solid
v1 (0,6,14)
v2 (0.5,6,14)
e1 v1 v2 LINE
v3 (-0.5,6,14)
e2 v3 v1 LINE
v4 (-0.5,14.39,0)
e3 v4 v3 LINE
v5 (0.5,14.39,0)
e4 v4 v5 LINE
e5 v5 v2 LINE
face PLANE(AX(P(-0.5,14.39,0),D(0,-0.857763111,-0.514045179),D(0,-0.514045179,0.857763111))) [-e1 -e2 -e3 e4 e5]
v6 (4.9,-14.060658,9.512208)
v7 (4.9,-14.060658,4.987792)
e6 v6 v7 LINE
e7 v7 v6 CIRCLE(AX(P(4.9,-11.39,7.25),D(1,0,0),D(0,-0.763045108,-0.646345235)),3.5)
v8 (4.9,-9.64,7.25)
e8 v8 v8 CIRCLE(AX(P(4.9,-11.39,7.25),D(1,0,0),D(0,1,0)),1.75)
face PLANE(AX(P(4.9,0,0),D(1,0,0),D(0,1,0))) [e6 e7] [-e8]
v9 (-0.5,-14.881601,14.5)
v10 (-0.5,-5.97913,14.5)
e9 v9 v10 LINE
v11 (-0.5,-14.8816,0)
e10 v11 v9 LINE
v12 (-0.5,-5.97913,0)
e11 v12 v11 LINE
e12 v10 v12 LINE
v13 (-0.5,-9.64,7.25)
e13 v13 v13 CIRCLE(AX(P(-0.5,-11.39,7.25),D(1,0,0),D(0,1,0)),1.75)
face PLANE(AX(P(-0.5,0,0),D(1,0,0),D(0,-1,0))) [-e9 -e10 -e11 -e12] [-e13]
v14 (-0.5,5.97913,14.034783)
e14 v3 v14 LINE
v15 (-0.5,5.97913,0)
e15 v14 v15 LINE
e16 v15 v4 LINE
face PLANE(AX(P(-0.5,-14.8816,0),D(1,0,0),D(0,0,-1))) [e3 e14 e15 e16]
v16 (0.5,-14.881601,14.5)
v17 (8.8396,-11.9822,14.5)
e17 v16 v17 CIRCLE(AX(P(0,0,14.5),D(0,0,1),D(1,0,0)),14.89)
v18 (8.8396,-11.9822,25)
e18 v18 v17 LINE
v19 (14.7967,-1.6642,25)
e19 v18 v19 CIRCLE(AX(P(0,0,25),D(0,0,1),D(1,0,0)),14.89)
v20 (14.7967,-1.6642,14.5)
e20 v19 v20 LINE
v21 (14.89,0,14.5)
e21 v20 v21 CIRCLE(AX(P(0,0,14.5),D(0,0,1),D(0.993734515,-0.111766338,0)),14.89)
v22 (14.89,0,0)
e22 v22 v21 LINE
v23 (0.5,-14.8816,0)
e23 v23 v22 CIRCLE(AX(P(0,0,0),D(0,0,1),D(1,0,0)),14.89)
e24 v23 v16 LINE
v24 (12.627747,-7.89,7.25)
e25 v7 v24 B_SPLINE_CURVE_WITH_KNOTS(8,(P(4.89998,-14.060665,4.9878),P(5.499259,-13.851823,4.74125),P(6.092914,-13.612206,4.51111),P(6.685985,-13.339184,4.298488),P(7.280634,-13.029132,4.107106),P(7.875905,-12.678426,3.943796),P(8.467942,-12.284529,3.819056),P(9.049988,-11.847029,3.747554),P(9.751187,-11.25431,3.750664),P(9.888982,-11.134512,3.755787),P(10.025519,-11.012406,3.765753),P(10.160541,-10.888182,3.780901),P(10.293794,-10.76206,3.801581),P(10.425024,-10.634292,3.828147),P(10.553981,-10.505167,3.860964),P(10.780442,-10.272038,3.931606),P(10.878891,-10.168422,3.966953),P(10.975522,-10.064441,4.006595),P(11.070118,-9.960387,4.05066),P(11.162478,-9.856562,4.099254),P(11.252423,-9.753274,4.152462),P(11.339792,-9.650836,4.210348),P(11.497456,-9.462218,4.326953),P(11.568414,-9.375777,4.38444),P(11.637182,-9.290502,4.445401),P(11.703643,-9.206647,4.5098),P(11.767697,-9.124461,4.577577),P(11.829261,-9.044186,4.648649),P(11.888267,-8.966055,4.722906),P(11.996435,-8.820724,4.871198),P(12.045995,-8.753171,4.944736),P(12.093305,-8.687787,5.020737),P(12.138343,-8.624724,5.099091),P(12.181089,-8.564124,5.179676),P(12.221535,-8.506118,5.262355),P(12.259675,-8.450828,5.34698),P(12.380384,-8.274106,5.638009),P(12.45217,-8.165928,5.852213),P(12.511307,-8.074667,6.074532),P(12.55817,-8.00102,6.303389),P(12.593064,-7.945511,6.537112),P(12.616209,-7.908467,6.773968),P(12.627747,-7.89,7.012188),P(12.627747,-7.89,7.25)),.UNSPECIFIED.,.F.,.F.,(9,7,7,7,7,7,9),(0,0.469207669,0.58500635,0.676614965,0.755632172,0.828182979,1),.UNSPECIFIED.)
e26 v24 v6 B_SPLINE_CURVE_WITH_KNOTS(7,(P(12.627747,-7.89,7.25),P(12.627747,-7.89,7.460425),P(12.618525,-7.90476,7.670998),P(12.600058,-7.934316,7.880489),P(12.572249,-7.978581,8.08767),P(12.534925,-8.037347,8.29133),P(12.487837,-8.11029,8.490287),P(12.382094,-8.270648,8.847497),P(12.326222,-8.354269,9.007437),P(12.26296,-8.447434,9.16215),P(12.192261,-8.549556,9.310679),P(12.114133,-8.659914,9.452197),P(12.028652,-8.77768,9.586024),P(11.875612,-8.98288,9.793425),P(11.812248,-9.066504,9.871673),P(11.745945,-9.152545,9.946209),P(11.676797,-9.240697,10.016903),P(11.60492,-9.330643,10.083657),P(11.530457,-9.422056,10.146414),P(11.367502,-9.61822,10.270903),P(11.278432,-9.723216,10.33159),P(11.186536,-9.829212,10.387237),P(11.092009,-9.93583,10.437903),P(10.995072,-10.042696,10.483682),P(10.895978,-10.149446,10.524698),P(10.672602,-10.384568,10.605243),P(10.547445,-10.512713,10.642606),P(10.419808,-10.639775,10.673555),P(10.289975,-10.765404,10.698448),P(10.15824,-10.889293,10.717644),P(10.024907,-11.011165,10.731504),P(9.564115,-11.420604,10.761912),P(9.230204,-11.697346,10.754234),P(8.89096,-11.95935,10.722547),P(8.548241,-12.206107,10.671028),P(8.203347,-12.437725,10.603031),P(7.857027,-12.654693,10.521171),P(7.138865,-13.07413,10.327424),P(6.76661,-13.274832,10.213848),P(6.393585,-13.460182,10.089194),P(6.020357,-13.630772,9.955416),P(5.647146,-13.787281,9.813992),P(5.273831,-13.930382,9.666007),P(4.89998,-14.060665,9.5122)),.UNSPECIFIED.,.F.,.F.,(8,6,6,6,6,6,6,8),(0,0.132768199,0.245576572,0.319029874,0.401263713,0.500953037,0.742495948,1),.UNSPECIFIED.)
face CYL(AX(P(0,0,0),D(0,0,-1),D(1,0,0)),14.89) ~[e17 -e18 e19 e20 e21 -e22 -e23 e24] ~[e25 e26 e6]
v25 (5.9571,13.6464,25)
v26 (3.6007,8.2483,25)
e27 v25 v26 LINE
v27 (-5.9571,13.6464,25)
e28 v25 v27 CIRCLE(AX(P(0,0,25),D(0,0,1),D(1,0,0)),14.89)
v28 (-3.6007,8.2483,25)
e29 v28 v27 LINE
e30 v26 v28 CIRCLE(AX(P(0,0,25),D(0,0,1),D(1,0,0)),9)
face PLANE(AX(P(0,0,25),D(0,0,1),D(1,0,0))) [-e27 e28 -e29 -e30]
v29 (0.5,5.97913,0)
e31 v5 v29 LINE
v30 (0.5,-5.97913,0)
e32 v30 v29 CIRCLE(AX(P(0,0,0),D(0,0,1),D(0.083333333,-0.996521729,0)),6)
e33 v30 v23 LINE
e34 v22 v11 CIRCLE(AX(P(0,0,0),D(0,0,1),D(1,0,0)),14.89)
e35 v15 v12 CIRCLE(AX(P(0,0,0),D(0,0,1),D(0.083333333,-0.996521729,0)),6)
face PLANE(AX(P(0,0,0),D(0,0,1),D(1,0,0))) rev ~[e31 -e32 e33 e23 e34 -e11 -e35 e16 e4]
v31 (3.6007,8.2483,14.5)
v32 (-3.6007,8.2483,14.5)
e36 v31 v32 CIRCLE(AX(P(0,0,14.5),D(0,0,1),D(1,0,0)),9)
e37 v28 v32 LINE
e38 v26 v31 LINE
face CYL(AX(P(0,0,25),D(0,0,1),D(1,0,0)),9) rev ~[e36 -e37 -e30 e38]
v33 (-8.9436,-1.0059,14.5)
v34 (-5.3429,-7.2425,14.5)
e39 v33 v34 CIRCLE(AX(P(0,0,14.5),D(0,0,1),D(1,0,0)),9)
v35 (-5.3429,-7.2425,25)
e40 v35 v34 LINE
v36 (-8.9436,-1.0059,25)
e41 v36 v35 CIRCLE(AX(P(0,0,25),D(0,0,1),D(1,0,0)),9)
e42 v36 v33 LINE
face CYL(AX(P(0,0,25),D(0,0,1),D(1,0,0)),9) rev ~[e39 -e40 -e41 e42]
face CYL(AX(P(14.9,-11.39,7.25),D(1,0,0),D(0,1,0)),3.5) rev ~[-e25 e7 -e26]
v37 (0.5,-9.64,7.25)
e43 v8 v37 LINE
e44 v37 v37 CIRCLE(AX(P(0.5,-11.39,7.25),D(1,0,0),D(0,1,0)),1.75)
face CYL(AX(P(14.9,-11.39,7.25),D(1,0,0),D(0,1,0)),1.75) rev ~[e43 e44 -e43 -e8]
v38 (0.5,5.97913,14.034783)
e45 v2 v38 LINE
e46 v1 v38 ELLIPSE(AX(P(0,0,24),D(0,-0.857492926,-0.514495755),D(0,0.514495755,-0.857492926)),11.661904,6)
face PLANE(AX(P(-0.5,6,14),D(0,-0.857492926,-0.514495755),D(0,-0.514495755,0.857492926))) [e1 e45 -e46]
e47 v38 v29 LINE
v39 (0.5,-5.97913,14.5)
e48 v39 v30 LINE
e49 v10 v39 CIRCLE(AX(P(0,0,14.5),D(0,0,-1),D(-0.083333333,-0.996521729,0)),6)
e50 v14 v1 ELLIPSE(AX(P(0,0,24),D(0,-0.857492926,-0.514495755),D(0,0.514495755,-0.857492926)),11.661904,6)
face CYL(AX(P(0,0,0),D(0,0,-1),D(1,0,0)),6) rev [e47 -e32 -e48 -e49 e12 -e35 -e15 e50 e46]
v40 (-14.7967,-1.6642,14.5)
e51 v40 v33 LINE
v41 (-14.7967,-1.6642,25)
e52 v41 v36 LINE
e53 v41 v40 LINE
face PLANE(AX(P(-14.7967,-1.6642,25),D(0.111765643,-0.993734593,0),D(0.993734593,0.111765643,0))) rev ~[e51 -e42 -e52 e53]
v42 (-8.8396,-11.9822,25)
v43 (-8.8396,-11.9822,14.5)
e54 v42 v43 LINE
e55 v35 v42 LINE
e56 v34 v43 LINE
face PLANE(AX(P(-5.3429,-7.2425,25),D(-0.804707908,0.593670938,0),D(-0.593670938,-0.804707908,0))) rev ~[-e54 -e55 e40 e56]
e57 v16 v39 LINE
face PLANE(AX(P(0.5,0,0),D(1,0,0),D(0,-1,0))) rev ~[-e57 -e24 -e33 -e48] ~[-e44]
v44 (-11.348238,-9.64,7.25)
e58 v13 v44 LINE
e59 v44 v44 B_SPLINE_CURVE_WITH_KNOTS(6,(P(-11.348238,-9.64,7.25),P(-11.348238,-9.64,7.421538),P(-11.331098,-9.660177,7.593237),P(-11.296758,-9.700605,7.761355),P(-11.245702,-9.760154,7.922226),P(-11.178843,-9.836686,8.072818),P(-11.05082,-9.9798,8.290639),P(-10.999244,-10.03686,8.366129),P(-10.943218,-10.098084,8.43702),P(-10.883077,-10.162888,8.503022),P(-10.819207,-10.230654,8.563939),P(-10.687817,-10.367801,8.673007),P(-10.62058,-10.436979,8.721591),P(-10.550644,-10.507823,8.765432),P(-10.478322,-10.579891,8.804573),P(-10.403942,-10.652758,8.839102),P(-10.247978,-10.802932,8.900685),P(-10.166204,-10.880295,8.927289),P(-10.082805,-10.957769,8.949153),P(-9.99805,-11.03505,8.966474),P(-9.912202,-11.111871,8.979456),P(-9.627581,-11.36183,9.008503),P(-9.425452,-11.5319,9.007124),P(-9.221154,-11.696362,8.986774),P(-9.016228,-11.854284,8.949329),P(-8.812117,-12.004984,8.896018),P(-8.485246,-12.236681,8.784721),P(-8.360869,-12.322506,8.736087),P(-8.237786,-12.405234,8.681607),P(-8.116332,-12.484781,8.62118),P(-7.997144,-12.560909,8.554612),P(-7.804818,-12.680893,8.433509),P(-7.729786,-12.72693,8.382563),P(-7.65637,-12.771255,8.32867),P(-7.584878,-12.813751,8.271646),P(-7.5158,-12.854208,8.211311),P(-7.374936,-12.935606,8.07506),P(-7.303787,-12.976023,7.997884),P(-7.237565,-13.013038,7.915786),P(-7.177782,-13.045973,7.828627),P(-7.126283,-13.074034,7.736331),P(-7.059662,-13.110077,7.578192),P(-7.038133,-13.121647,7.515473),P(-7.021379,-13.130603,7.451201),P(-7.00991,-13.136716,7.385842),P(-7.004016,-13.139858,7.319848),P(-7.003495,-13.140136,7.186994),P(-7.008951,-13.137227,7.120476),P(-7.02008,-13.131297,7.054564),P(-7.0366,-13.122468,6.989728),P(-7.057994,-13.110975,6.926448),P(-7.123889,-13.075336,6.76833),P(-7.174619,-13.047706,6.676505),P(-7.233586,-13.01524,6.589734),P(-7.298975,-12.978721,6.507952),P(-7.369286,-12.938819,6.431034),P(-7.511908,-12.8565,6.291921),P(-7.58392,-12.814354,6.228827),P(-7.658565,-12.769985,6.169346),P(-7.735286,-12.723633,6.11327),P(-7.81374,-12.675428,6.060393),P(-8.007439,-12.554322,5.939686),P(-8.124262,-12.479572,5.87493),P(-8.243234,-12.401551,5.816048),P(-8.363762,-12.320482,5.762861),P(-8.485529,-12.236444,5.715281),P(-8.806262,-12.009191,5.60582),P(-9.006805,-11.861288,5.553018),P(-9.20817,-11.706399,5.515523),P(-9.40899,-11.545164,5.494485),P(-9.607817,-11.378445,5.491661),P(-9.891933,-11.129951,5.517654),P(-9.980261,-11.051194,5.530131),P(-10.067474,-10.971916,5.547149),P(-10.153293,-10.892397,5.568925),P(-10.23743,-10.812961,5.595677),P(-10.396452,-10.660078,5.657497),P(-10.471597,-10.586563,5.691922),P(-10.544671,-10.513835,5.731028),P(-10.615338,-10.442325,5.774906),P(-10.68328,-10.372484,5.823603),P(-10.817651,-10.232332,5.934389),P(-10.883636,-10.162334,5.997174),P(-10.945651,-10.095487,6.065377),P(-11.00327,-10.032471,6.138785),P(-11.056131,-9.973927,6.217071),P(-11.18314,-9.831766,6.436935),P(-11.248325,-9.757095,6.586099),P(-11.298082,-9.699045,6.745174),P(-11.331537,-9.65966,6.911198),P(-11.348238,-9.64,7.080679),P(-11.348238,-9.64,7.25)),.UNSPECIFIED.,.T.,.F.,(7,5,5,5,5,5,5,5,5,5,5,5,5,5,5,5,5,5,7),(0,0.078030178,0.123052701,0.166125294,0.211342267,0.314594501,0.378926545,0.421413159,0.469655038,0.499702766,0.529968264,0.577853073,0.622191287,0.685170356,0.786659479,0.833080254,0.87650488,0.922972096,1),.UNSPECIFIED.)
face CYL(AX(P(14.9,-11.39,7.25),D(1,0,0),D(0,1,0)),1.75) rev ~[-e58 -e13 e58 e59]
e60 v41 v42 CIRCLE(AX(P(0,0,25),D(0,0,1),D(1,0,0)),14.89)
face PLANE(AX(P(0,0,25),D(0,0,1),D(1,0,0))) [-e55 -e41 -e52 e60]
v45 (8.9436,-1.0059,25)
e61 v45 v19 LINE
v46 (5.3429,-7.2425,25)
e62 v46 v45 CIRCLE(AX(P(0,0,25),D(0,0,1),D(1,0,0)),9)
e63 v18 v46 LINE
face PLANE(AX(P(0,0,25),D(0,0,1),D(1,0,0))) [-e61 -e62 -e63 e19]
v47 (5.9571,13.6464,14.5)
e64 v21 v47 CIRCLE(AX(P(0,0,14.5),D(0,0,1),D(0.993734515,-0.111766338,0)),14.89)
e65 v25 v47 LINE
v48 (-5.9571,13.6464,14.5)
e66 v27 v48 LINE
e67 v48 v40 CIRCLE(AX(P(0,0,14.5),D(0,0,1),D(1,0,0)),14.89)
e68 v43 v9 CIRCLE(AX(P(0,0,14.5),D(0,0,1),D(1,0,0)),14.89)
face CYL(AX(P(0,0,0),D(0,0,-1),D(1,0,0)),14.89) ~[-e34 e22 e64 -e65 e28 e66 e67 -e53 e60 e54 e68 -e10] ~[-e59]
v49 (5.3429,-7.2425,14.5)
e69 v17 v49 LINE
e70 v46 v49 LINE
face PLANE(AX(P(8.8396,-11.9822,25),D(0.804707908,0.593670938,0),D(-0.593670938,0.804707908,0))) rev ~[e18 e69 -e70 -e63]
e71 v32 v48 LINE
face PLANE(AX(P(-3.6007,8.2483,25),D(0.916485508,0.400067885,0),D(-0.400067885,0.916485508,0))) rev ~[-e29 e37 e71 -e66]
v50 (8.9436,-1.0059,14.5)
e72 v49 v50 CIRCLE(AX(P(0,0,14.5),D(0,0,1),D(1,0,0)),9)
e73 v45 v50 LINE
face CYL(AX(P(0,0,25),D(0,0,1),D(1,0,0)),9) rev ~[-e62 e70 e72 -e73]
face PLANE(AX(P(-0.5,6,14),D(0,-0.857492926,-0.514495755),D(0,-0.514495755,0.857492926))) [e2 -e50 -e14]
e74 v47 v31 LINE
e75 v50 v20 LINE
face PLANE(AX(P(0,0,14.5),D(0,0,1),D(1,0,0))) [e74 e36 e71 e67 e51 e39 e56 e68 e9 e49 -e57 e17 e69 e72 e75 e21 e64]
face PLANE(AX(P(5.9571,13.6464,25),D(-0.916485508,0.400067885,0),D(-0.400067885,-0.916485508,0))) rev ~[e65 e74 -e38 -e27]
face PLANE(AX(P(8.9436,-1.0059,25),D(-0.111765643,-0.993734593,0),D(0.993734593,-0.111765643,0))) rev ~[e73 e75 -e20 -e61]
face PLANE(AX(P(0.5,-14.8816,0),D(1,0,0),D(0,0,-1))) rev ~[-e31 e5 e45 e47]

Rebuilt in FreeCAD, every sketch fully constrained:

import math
import FreeCAD as App
import Part
import Sketcher
from FreeCAD import Vector
Q = App.Units.Quantity


def add_polygon(sketch, points):
    """Adds a closed chain of lines whose ends are joined by coincident constraints."""
    first, n = sketch.GeometryCount, len(points)
    for a, b in zip(points, points[1:] + points[:1]):
        sketch.addGeometry(Part.LineSegment(App.Vector(*a, 0), App.Vector(*b, 0)), False)
    for i in range(n):
        sketch.addConstraint(Sketcher.Constraint("Coincident", first + i, 2, first + (i + 1) % n, 1))

doc = App.newDocument("Part")
params = doc.addObject("Spreadsheet::Sheet", "Params")
for row, (alias, value) in enumerate([
    ("sketch1_diameter", "12 mm"),
    ("sketch1_diameter2", "29.78 mm"),
    ("pad1_length", "25 mm"),
    ("sketch2_radius", "9 mm"),
    ("sketch2_radius2", "14.89 mm"),
    ("pocket1_length", "10.5 mm"),
    ("sketch3_diameter", "7 mm"),
    ("pocket2_length", "10 mm"),
    ("sketch4_diameter", "3.5 mm"),
    ("pocket3_length", "30 mm"),
    ("sketch5_radius", "14.89 mm"),
    ("pocket4_length", "15 mm"),
    ("sketch6_height", "14.5 mm"),
    ("pocket5_length", "1 mm"),
], start=1):
    params.set(f"A{row}", alias)
    params.set(f"B{row}", "=" + value)
    params.setAlias(f"B{row}", alias)

body = doc.addObject("PartDesign::Body", "Body")

# Sketch on XY plane
sketch1 = doc.addObject("Sketcher::SketchObject", "Sketch")
body.addObject(sketch1)
sketch1.AttachmentSupport = (doc.XY_Plane, [""])
sketch1.MapMode = "FlatFace"
sketch1.addGeometry(Part.Circle(Vector(0, 0, 0), Vector(0, 0, 1), 14.89), False)
sketch1.addGeometry(Part.Circle(Vector(0, 0, 0), Vector(0, 0, 1), 6), False)
sketch1.addConstraint(Sketcher.Constraint("Coincident", 0, 3, -1, 1))
sketch1.addConstraint(Sketcher.Constraint("Coincident", 1, 3, -1, 1))
sketch1.addConstraint(Sketcher.Constraint("Diameter", 1, Q("12 mm")))
sketch1.addConstraint(Sketcher.Constraint("Diameter", 0, Q("29.78 mm")))
sketch1.setExpression("Constraints[2]", "Params.sketch1_diameter")
sketch1.setExpression("Constraints[3]", "Params.sketch1_diameter2")
pad1 = doc.addObject("PartDesign::Pad", "Pad")
body.addObject(pad1)
pad1.Profile = sketch1
pad1.setExpression("Length", "Params.pad1_length")

# Sketch on XY plane
sketch2 = doc.addObject("Sketcher::SketchObject", "Sketch001")
body.addObject(sketch2)
sketch2.AttachmentSupport = (doc.XY_Plane, [""])
sketch2.MapMode = "FlatFace"
sketch2.AttachmentOffset = App.Placement(Vector(0, 0, 25), App.Rotation())
sketch2.addGeometry(Part.ArcOfCircle(Part.Circle(Vector(0, 0, 0), Vector(0, 0, 1), 14.89), math.radians(-6.417147), math.radians(66.417157)), False)
sketch2.addGeometry(Part.LineSegment(Vector(5.9571, 13.6464, 0), Vector(3.6007, 8.2483, 0)), False)
sketch2.addGeometry(Part.ArcOfCircle(Part.Circle(Vector(0, 0, 0), Vector(0, 0, 1), 9), math.radians(66.416881), math.radians(113.583119)), False)
sketch2.addGeometry(Part.LineSegment(Vector(-3.6007, 8.2483, 0), Vector(-5.9571, 13.6464, 0)), False)
sketch2.addGeometry(Part.ArcOfCircle(Part.Circle(Vector(0, 0, 0), Vector(0, 0, 1), 14.89), math.radians(113.582843), math.radians(186.417147)), False)
sketch2.addGeometry(Part.LineSegment(Vector(-14.7967, -1.6642, 0), Vector(-8.9436, -1.0059, 0)), False)
sketch2.addGeometry(Part.ArcOfCircle(Part.Circle(Vector(0, 0, 0), Vector(0, 0, 1), 9), math.radians(-173.582826), math.radians(-126.416748)), False)
sketch2.addGeometry(Part.LineSegment(Vector(-5.3429, -7.2425, 0), Vector(-8.8396, -11.9822, 0)), False)
sketch2.addGeometry(Part.ArcOfCircle(Part.Circle(Vector(0, 0, 0), Vector(0, 0, 1), 14.89), math.radians(-126.417221), math.radians(-53.582779)), False)
sketch2.addGeometry(Part.LineSegment(Vector(8.8396, -11.9822, 0), Vector(5.3429, -7.2425, 0)), False)
sketch2.addGeometry(Part.ArcOfCircle(Part.Circle(Vector(0, 0, 0), Vector(0, 0, 1), 9), math.radians(-53.583252), math.radians(-6.417174)), False)
sketch2.addGeometry(Part.LineSegment(Vector(8.9436, -1.0059, 0), Vector(14.7967, -1.6642, 0)), False)
sketch2.addConstraint(Sketcher.Constraint("Coincident", 0, 2, 1, 1))
sketch2.addConstraint(Sketcher.Constraint("Coincident", 1, 2, 2, 1))
sketch2.addConstraint(Sketcher.Constraint("Coincident", 2, 2, 3, 1))
sketch2.addConstraint(Sketcher.Constraint("Coincident", 3, 2, 4, 1))
sketch2.addConstraint(Sketcher.Constraint("Coincident", 4, 2, 5, 1))
sketch2.addConstraint(Sketcher.Constraint("Coincident", 5, 2, 6, 1))
sketch2.addConstraint(Sketcher.Constraint("Coincident", 6, 2, 7, 1))
sketch2.addConstraint(Sketcher.Constraint("Coincident", 7, 2, 8, 1))
sketch2.addConstraint(Sketcher.Constraint("Coincident", 8, 2, 9, 1))
sketch2.addConstraint(Sketcher.Constraint("Coincident", 9, 2, 10, 1))
sketch2.addConstraint(Sketcher.Constraint("Coincident", 10, 2, 11, 1))
sketch2.addConstraint(Sketcher.Constraint("Coincident", 11, 2, 0, 1))
sketch2.addConstraint(Sketcher.Constraint("Coincident", 0, 3, -1, 1))
sketch2.addConstraint(Sketcher.Constraint("Coincident", 2, 3, -1, 1))
sketch2.addConstraint(Sketcher.Constraint("Coincident", 4, 3, -1, 1))
sketch2.addConstraint(Sketcher.Constraint("Coincident", 6, 3, -1, 1))
sketch2.addConstraint(Sketcher.Constraint("Coincident", 8, 3, -1, 1))
sketch2.addConstraint(Sketcher.Constraint("Coincident", 10, 3, -1, 1))
sketch2.addConstraint(Sketcher.Constraint("Equal", 0, 4))
sketch2.addConstraint(Sketcher.Constraint("Equal", 2, 6))
sketch2.addConstraint(Sketcher.Constraint("Equal", 4, 8))
sketch2.addConstraint(Sketcher.Constraint("Equal", 6, 10))
sketch2.addConstraint(Sketcher.Constraint("Horizontal", 1, 2, 2, 2))
sketch2.addConstraint(Sketcher.Constraint("Horizontal", 0, 2, 3, 2))
sketch2.addConstraint(Sketcher.Constraint("Horizontal", 7, 2, 8, 2))
sketch2.addConstraint(Sketcher.Constraint("Horizontal", 6, 2, 9, 2))
sketch2.addConstraint(Sketcher.Constraint("Horizontal", 5, 2, 10, 2))
sketch2.addConstraint(Sketcher.Constraint("Horizontal", 4, 2, 11, 2))
sketch2.addConstraint(Sketcher.Constraint("Radius", 2, Q("9 mm")))
sketch2.addConstraint(Sketcher.Constraint("Radius", 0, Q("14.89 mm")))
sketch2.addConstraint(Sketcher.Constraint("DistanceX", -1, 1, 0, 2, Q("5.957 mm")))
sketch2.addConstraint(Sketcher.Constraint("DistanceY", 5, 2, -1, 1, Q("1.006 mm")))
sketch2.addConstraint(Sketcher.Constraint("DistanceX", 6, 2, -1, 1, Q("5.343 mm")))
sketch2.addConstraint(Sketcher.Constraint("DistanceY", 2, 2, 3, 2, Q("5.398 mm")))
sketch2.addConstraint(Sketcher.Constraint("DistanceX", 4, 2, 5, 2, Q("5.853 mm")))
sketch2.addConstraint(Sketcher.Constraint("DistanceX", 5, 2, 7, 2, Q("0.104 mm")))
sketch2.setExpression("Constraints[28]", "Params.sketch2_radius")
sketch2.setExpression("Constraints[29]", "Params.sketch2_radius2")
pocket1 = doc.addObject("PartDesign::Pocket", "Pocket")
body.addObject(pocket1)
pocket1.Profile = sketch2
pocket1.setExpression("Length", "Params.pocket1_length")

# Sketch on YZ plane
sketch3 = doc.addObject("Sketcher::SketchObject", "Sketch002")
body.addObject(sketch3)
sketch3.AttachmentSupport = (doc.YZ_Plane, [""])
sketch3.MapMode = "FlatFace"
sketch3.AttachmentOffset = App.Placement(Vector(0, 0, 14.9), App.Rotation())
sketch3.addGeometry(Part.Circle(Vector(-11.39, 7.25, 0), Vector(0, 0, 1), 3.5), False)
sketch3.addConstraint(Sketcher.Constraint("Diameter", 0, Q("7 mm")))
sketch3.addConstraint(Sketcher.Constraint("DistanceX", 0, 3, -1, 1, Q("11.39 mm")))
sketch3.addConstraint(Sketcher.Constraint("DistanceY", -1, 1, 0, 3, Q("7.25 mm")))
sketch3.setExpression("Constraints[0]", "Params.sketch3_diameter")
pocket2 = doc.addObject("PartDesign::Pocket", "Pocket001")
body.addObject(pocket2)
pocket2.Profile = sketch3
pocket2.setExpression("Length", "Params.pocket2_length")

# Sketch on YZ plane
sketch4 = doc.addObject("Sketcher::SketchObject", "Sketch003")
body.addObject(sketch4)
sketch4.AttachmentSupport = (doc.YZ_Plane, [""])
sketch4.MapMode = "FlatFace"
sketch4.AttachmentOffset = App.Placement(Vector(0, 0, 14.9), App.Rotation())
sketch4.addGeometry(Part.Circle(Vector(-11.39, 7.25, 0), Vector(0, 0, 1), 1.75), False)
sketch4.addConstraint(Sketcher.Constraint("Diameter", 0, Q("3.5 mm")))
sketch4.addConstraint(Sketcher.Constraint("DistanceX", 0, 3, -1, 1, Q("11.39 mm")))
sketch4.addConstraint(Sketcher.Constraint("DistanceY", -1, 1, 0, 3, Q("7.25 mm")))
sketch4.setExpression("Constraints[0]", "Params.sketch4_diameter")
pocket3 = doc.addObject("PartDesign::Pocket", "Pocket002")
body.addObject(pocket3)
pocket3.Profile = sketch4
pocket3.setExpression("Length", "Params.pocket3_length")

# Sketch on XY plane
sketch5 = doc.addObject("Sketcher::SketchObject", "Sketch004")
body.addObject(sketch5)
sketch5.AttachmentSupport = (doc.XY_Plane, [""])
sketch5.MapMode = "FlatFace"
sketch5.addGeometry(Part.LineSegment(Vector(0.5, 0, 0), Vector(0.5, -14.8816, 0)), False)
sketch5.addGeometry(Part.ArcOfCircle(Part.Circle(Vector(0, 0, 0), Vector(0, 0, 1), 14.889985), math.radians(-91.924331), math.radians(-88.075669)), False)
sketch5.addGeometry(Part.LineSegment(Vector(-0.5, -14.8816, 0), Vector(-0.5, 0, 0)), False)
sketch5.addGeometry(Part.LineSegment(Vector(-0.5, 0, 0), Vector(0.5, 0, 0)), False)
sketch5.addConstraint(Sketcher.Constraint("Coincident", 0, 2, 1, 2))
sketch5.addConstraint(Sketcher.Constraint("Coincident", 1, 1, 2, 1))
sketch5.addConstraint(Sketcher.Constraint("Coincident", 2, 2, 3, 1))
sketch5.addConstraint(Sketcher.Constraint("Coincident", 3, 2, 0, 1))
sketch5.addConstraint(Sketcher.Constraint("Vertical", 0))
sketch5.addConstraint(Sketcher.Constraint("Vertical", 2))
sketch5.addConstraint(Sketcher.Constraint("Horizontal", 3))
sketch5.addConstraint(Sketcher.Constraint("Coincident", 1, 3, -1, 1))
sketch5.addConstraint(Sketcher.Constraint("Symmetric", 2, 2, 3, 2, -1, 1))
sketch5.addConstraint(Sketcher.Constraint("DistanceX", -1, 1, 0, 2, Q("0.5 mm")))
sketch5.addConstraint(Sketcher.Constraint("Radius", 1, Q("14.89 mm")))
sketch5.setExpression("Constraints[10]", "Params.sketch5_radius")
pocket4 = doc.addObject("PartDesign::Pocket", "Pocket003")
body.addObject(pocket4)
pocket4.Profile = sketch5
pocket4.setExpression("Length", "Params.pocket4_length")
pocket4.Reversed = True

# Sketch on YZ plane
sketch6 = doc.addObject("Sketcher::SketchObject", "Sketch005")
body.addObject(sketch6)
sketch6.AttachmentSupport = (doc.YZ_Plane, [""])
sketch6.MapMode = "FlatFace"
sketch6.AttachmentOffset = App.Placement(Vector(0, 0, -0.5), App.Rotation())
add_polygon(sketch6, [(3.1329, 0), (14.39, 0), (6, 14), (5.9769, 14.0385), (5.9769, 14.5), (3.1329, 14.5)])  # lines 0-5
sketch6.addConstraint(Sketcher.Constraint("Horizontal", 0))
sketch6.addConstraint(Sketcher.Constraint("Vertical", 3))
sketch6.addConstraint(Sketcher.Constraint("Horizontal", 4))
sketch6.addConstraint(Sketcher.Constraint("Vertical", 5))
sketch6.addConstraint(Sketcher.Constraint("PointOnObject", 0, 2, -1))
sketch6.addConstraint(Sketcher.Constraint("DistanceY", 1, 2, 3, 2, Q("0.5 mm")))
sketch6.addConstraint(Sketcher.Constraint("DistanceY", 5, 2, 5, 1, Q("14.5 mm")))
sketch6.addConstraint(Sketcher.Constraint("DistanceX", -1, 1, 1, 2, Q("6 mm")))
sketch6.addConstraint(Sketcher.Constraint("DistanceX", 0, 1, 0, 2, Q("11.257 mm")))
sketch6.addConstraint(Sketcher.Constraint("DistanceX", 4, 2, 4, 1, Q("2.844 mm")))
sketch6.addConstraint(Sketcher.Constraint("DistanceX", -1, 1, 0, 2, Q("14.39 mm")))
sketch6.addConstraint(Sketcher.Constraint("Distance", 2, Q("0.045 mm")))
sketch6.setExpression("Constraints[12]", "Params.sketch6_height")
pocket5 = doc.addObject("PartDesign::Pocket", "Pocket004")
body.addObject(pocket5)
pocket5.Profile = sketch6
pocket5.setExpression("Length", "Params.pocket5_length")
pocket5.Reversed = True

doc.recompute()
